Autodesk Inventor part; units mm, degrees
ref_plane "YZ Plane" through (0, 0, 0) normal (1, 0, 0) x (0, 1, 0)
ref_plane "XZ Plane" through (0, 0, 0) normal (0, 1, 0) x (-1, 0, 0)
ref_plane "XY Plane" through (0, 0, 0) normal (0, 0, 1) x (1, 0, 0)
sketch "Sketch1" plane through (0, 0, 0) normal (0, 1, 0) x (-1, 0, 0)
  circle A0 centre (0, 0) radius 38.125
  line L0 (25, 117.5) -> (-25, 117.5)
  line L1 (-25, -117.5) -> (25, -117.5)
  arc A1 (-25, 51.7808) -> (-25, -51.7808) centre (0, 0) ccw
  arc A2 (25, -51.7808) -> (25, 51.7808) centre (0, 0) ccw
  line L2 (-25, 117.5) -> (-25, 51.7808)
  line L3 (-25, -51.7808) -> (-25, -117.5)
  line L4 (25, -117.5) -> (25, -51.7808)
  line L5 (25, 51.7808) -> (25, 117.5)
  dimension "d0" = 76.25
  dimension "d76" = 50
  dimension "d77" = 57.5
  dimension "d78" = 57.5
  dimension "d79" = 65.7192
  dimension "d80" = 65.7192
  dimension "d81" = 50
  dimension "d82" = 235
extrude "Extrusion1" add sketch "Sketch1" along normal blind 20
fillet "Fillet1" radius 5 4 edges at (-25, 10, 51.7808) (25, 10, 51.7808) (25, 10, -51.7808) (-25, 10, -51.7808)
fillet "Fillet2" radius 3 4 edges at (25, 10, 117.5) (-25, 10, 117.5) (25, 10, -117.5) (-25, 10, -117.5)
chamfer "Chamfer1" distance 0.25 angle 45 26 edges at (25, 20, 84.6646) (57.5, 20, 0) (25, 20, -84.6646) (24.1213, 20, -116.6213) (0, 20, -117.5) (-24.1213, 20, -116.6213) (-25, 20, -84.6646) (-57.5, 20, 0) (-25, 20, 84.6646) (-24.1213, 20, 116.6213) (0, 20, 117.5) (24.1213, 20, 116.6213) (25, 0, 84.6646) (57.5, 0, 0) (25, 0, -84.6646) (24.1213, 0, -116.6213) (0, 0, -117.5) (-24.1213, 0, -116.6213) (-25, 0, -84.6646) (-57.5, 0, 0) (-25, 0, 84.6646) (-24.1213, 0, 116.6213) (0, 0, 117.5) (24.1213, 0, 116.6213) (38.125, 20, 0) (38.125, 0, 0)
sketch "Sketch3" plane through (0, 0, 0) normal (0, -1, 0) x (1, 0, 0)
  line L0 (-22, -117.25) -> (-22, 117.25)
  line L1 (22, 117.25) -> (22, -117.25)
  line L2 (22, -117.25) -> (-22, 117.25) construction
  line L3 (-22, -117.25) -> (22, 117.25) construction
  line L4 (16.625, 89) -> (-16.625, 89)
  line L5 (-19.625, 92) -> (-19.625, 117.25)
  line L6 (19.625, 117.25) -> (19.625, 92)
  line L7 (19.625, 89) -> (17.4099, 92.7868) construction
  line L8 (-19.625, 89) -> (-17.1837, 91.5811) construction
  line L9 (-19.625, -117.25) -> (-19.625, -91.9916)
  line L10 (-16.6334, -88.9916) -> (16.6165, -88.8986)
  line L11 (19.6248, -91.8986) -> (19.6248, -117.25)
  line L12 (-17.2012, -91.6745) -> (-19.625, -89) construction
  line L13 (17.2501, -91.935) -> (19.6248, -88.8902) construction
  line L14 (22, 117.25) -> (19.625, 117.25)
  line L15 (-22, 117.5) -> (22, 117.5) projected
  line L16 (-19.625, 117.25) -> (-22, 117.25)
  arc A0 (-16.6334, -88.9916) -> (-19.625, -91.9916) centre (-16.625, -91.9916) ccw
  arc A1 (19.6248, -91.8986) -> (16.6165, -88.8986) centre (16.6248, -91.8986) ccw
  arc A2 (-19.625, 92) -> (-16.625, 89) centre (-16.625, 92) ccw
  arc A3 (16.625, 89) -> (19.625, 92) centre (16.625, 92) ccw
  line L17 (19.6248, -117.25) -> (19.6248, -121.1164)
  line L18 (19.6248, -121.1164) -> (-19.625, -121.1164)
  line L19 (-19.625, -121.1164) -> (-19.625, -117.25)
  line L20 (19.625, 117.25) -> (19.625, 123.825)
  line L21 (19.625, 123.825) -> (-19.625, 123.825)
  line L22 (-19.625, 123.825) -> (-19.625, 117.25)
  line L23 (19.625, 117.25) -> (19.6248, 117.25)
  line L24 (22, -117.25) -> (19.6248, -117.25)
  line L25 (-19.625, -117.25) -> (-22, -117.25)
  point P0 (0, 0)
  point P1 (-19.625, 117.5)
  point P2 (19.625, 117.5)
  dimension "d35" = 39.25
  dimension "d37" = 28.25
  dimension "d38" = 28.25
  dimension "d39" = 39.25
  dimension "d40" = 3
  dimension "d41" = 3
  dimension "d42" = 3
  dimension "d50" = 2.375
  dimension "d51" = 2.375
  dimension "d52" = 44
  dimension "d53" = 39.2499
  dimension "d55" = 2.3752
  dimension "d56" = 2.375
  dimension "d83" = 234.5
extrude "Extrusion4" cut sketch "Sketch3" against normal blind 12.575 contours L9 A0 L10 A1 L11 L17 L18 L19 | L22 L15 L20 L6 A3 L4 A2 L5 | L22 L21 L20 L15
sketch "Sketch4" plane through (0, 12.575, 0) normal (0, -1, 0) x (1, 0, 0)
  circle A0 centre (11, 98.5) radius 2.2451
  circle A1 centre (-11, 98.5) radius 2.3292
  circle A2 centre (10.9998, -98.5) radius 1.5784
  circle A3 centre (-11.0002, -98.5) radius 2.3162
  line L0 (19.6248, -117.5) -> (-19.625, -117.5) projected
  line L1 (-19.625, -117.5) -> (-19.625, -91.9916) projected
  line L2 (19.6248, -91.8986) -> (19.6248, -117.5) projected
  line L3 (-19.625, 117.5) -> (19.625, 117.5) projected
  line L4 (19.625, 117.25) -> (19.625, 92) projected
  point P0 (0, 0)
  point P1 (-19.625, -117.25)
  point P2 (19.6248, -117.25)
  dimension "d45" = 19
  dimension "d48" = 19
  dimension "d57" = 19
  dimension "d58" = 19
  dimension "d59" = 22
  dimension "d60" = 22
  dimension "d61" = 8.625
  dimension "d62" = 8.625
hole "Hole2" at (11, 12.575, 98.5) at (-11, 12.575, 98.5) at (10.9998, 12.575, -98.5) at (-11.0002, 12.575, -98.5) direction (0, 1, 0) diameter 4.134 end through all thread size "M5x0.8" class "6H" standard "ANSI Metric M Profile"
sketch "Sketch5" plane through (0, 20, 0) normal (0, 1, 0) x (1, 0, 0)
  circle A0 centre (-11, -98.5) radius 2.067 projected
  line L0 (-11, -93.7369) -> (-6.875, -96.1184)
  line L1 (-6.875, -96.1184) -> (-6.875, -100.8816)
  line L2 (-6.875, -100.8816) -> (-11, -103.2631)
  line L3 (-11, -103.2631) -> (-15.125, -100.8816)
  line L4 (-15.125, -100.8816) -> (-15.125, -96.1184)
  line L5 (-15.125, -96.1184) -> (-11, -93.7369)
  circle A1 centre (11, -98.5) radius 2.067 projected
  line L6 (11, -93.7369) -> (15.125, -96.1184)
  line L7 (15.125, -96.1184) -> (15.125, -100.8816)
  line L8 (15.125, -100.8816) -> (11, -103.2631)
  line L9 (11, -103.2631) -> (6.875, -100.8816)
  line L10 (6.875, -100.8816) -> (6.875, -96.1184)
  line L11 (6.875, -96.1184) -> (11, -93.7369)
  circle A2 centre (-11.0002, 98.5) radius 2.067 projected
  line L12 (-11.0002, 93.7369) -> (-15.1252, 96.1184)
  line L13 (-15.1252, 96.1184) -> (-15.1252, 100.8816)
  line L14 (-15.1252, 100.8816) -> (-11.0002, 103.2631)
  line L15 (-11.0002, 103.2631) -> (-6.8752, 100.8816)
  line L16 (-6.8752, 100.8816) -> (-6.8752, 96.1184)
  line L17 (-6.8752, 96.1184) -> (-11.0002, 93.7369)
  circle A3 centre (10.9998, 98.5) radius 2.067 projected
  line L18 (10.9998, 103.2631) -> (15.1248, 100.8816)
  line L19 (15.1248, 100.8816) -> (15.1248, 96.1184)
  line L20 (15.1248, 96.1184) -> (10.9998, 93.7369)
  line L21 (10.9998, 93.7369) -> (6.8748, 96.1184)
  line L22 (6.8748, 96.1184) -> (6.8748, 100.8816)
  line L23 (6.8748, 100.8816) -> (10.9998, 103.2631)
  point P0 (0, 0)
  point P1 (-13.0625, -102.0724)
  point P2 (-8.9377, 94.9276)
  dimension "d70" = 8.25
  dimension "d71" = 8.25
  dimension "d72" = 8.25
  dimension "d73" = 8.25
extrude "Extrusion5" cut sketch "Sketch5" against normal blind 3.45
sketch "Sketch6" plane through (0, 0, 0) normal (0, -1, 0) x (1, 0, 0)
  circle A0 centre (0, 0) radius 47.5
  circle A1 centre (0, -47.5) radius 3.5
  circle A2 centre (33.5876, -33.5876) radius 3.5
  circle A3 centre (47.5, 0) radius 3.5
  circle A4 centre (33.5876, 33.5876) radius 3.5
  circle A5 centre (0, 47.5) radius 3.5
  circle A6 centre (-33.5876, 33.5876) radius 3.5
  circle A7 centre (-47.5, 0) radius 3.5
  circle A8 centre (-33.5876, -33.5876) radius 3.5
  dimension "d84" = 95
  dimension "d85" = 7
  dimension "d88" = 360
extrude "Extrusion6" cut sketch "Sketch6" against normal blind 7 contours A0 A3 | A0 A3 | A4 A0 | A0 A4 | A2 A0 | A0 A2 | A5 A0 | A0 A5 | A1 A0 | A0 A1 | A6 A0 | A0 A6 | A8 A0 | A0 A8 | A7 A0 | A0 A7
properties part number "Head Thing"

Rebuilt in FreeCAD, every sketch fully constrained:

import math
import FreeCAD as App
import Part
import Sketcher

V = App.Vector
Q = App.Units.Quantity


def edges_at(feature, points):
    """Names of the edges that pass closest to the given points."""
    edges = feature.Shape.Edges
    near = lambda p: min(range(len(edges)), key=lambda i: edges[i].distToShape(Part.Vertex(*p))[0])
    return sorted({f"Edge{near(p) + 1}" for p in points})

doc = App.newDocument("Part")
body = doc.addObject("PartDesign::Body", "Body")

# Sketch on XZ plane
sketch1 = body.newObject("Sketcher::SketchObject", "Sketch")
sketch1.AttachmentSupport = (doc.getObject("XZ_Plane"), [""])
sketch1.MapMode = "FlatFace"
sketch1.addGeometry([
    Part.LineSegment(V(-25, 52, 0), V(-25, 118, 0)),  # 0
    Part.LineSegment(V(-25, 118, 0), V(25, 118, 0)),  # 1
    Part.LineSegment(V(25, 118, 0), V(25, 52, 0)),  # 2
    Part.ArcOfCircle(Part.Circle(V(0, 0, 0), V(0, 0, 1), 58), math.radians(-64), math.radians(64)),  # 3
    Part.LineSegment(V(25, -52, 0), V(25, -118, 0)),  # 4
    Part.LineSegment(V(25, -118, 0), V(-25, -118, 0)),  # 5
    Part.LineSegment(V(-25, -118, 0), V(-25, -52, 0)),  # 6
    Part.ArcOfCircle(Part.Circle(V(0, 0, 0), V(0, 0, 1), 58), math.radians(116), math.radians(244)),  # 7
    Part.Circle(V(0, 0, 0), V(0, 0, 1), 38),  # 8
], False)
sketch1.addConstraint([
    Sketcher.Constraint("Coincident", 0, 2, 1, 1),
    Sketcher.Constraint("Coincident", 1, 2, 2, 1),
    Sketcher.Constraint("Coincident", 2, 2, 3, 2),
    Sketcher.Constraint("Coincident", 3, 1, 4, 1),
    Sketcher.Constraint("Coincident", 4, 2, 5, 1),
    Sketcher.Constraint("Coincident", 5, 2, 6, 1),
    Sketcher.Constraint("Coincident", 6, 2, 7, 2),
    Sketcher.Constraint("Coincident", 7, 1, 0, 1),
    Sketcher.Constraint("Vertical", 0),
    Sketcher.Constraint("Horizontal", 1),
    Sketcher.Constraint("Vertical", 2),
    Sketcher.Constraint("Vertical", 4),
    Sketcher.Constraint("Horizontal", 5),
    Sketcher.Constraint("Vertical", 6),
    Sketcher.Constraint("Coincident", 3, 3, -1, 1),
    Sketcher.Constraint("Coincident", 7, 3, -1, 1),
    Sketcher.Constraint("Coincident", 8, 3, -1, 1),
    Sketcher.Constraint("Equal", 3, 7),
    Sketcher.Constraint("Symmetric", 0, 2, 4, 2, -1, 1),
    Sketcher.Constraint("Horizontal", 3, 1, 6, 2),
    Sketcher.Constraint("Horizontal", 2, 2, 7, 1),
    Sketcher.Constraint("Radius", 3, Q("57.5 mm")),
    Sketcher.Constraint("Diameter", 8, Q("76.25 mm")),
    Sketcher.Constraint("DistanceX", 1, 1, 1, 2, Q("50 mm")),
    Sketcher.Constraint("DistanceY", 0, 1, 0, 2, Q("65.7192 mm")),
])
pad1 = body.newObject("PartDesign::Pad", "Pad")
pad1.Profile = sketch1
pad1.Length = 20
pad1.Reversed = True
doc.recompute()

fillet = body.newObject("PartDesign::Fillet", "Fillet")
fillet.Base = (pad1, edges_at(pad1, [
    (-25, 10, 51.781),
    (25, 10, 51.781),
    (25, 10, -51.781),
    (-25, 10, -51.781),
]))
fillet.Radius = 5
doc.recompute()

fillet2 = body.newObject("PartDesign::Fillet", "Fillet001")
fillet2.Base = (fillet, edges_at(fillet, [
    (25, 10, 117.5),
    (-25, 10, 117.5),
    (25, 10, -117.5),
    (-25, 10, -117.5),
]))
fillet2.Radius = 3
doc.recompute()

chamfer = body.newObject("PartDesign::Chamfer", "Chamfer")
chamfer.Base = (fillet2, edges_at(fillet2, [
    (25, 20, 84.665),
    (57.5, 20, 0),
    (25, 20, -84.665),
    (24.121, 20, -116.621),
    (0, 20, -117.5),
    (-24.121, 20, -116.621),
    (-25, 20, -84.665),
    (-57.5, 20, 0),
    (-25, 20, 84.665),
    (-24.121, 20, 116.621),
    (0, 20, 117.5),
    (24.121, 20, 116.621),
    (25, 0, 84.665),
    (57.5, 0, 0),
    (25, 0, -84.665),
    (24.121, 0, -116.621),
    (0, 0, -117.5),
    (-24.121, 0, -116.621),
    (-25, 0, -84.665),
    (-57.5, 0, 0),
    (-25, 0, 84.665),
    (-24.121, 0, 116.621),
    (0, 0, 117.5),
    (24.121, 0, 116.621),
    (38.125, 20, 0),
    (38.125, 0, 0),
]))
chamfer.Size = 0.25

# Sketch on XZ plane
sketch2 = body.newObject("Sketcher::SketchObject", "Sketch001")
sketch2.AttachmentSupport = (doc.getObject("XZ_Plane"), [""])
sketch2.MapMode = "FlatFace"
sketch2.addGeometry([
    Part.LineSegment(V(-19.6, -92, 0), V(-19.6, -121.1, 0)),  # 0
    Part.LineSegment(V(-19.6, -121.1, 0), V(19.6, -121.1, 0)),  # 1
    Part.LineSegment(V(19.6, -121.1, 0), V(19.6, -91.9, 0)),  # 2
    Part.ArcOfCircle(Part.Circle(V(16.6, -91.9, 0), V(0, 0, 1), 3), math.radians(0), math.radians(90)),  # 3
    Part.LineSegment(V(16.6, -88.9, 0), V(-16.6, -89, 0)),  # 4
    Part.ArcOfCircle(Part.Circle(V(-16.6, -92, 0), V(0, 0, 1), 3), math.radians(90), math.radians(180)),  # 5
    Part.ArcOfCircle(Part.Circle(V(-16.6, 92, 0), V(0, 0, 1), 3), math.radians(180), math.radians(270)),  # 6
    Part.LineSegment(V(-16.6, 89, 0), V(16.6, 89, 0)),  # 7
    Part.ArcOfCircle(Part.Circle(V(16.6, 92, 0), V(0, 0, 1), 3), math.radians(-90), math.radians(0)),  # 8
    Part.LineSegment(V(19.6, 92, 0), V(19.6, 123.8, 0)),  # 9
    Part.LineSegment(V(19.6, 123.8, 0), V(-19.6, 123.8, 0)),  # 10
    Part.LineSegment(V(-19.6, 123.8, 0), V(-19.6, 92, 0)),  # 11
], False)
sketch2.addConstraint([
    Sketcher.Constraint("Coincident", 0, 2, 1, 1),
    Sketcher.Constraint("Coincident", 1, 2, 2, 1),
    Sketcher.Constraint("Tangent", 2, 2, 3, 1),
    Sketcher.Constraint("Tangent", 3, 2, 4, 1),
    Sketcher.Constraint("Tangent", 4, 2, 5, 1),
    Sketcher.Constraint("Tangent", 5, 2, 0, 1),
    Sketcher.Constraint("Tangent", 6, 2, 7, 1),
    Sketcher.Constraint("Tangent", 7, 2, 8, 1),
    Sketcher.Constraint("Tangent", 8, 2, 9, 1),
    Sketcher.Constraint("Coincident", 9, 2, 10, 1),
    Sketcher.Constraint("Coincident", 10, 2, 11, 1),
    Sketcher.Constraint("Tangent", 11, 2, 6, 1),
    Sketcher.Constraint("Vertical", 0),
    Sketcher.Constraint("Horizontal", 1),
    Sketcher.Constraint("Vertical", 2),
    Sketcher.Constraint("Horizontal", 7),
    Sketcher.Constraint("Vertical", 9),
    Sketcher.Constraint("Horizontal", 10),
    Sketcher.Constraint("Vertical", 11),
    Sketcher.Constraint("Equal", 3, 5),
    Sketcher.Constraint("Equal", 5, 6),
    Sketcher.Constraint("Equal", 6, 8),
    Sketcher.Constraint("Vertical", 5, 3, 6, 3),
    Sketcher.Constraint("Vertical", 3, 3, 8, 3),
    Sketcher.Constraint("Radius", 3, Q("3 mm")),
    Sketcher.Constraint("DistanceX", 10, 2, 10, 1, Q("39.25 mm")),
    Sketcher.Constraint("DistanceY", -1, 1, 6, 3, Q("92 mm")),
    Sketcher.Constraint("Angle", 4, Q("-179.8397 deg")),
    Sketcher.Constraint("DistanceY", 9, 1, 9, 2, Q("31.825 mm")),
    Sketcher.Constraint("DistanceY", 0, 2, 0, 1, Q("29.1248 mm")),
    Sketcher.Constraint("DistanceX", 5, 3, -1, 1, Q("16.625 mm")),
    Sketcher.Constraint("DistanceY", 3, 3, -1, 1, Q("91.8986 mm")),
])
pocket1 = body.newObject("PartDesign::Pocket", "Pocket")
pocket1.Profile = sketch2
pocket1.Length = 12.575

# Sketch on XZ plane
sketch3 = body.newObject("Sketcher::SketchObject", "Sketch002")
sketch3.AttachmentSupport = (doc.getObject("XZ_Plane"), [""])
sketch3.MapMode = "FlatFace"
sketch3.AttachmentOffset = App.Placement(V(0, 0, -12.575), App.Rotation())
sketch3.addGeometry([
    Part.Circle(V(11, 98.5, 0), V(0, 0, 1), 2.1),
    Part.Circle(V(-11, 98.5, 0), V(0, 0, 1), 2.1),
    Part.Circle(V(11, -98.5, 0), V(0, 0, 1), 2.1),
    Part.Circle(V(-11, -98.5, 0), V(0, 0, 1), 2.1),
], False)
sketch3.addConstraint([
    Sketcher.Constraint("Equal", 0, 1),
    Sketcher.Constraint("Equal", 1, 2),
    Sketcher.Constraint("Equal", 2, 3),
    Sketcher.Constraint("Symmetric", 1, 3, 2, 3, -1, 1),
    Sketcher.Constraint("Symmetric", 0, 3, 3, 3, -1, 1),
    Sketcher.Constraint("Symmetric", 0, 3, 1, 3, -2),
    Sketcher.Constraint("Diameter", 0, Q("4.134 mm")),
    Sketcher.Constraint("DistanceX", -1, 1, 0, 3, Q("11 mm")),
    Sketcher.Constraint("DistanceY", 2, 3, 0, 3, Q("197 mm")),
])
doc.recompute()
hole = body.newObject("PartDesign::Hole", "Hole")
hole.Profile = sketch3
hole.ThreadType = "None"
hole.Diameter = 4.134
hole.DepthType = "ThroughAll"

# Sketch on XZ plane
sketch4 = body.newObject("Sketcher::SketchObject", "Sketch003")
sketch4.AttachmentSupport = (doc.getObject("XZ_Plane"), [""])
sketch4.MapMode = "FlatFace"
sketch4.AttachmentOffset = App.Placement(V(0, 0, -20), App.Rotation())
sketch4.addGeometry([
    Part.LineSegment(V(-6.9, 96.1, 0), V(-11, 93.7, 0)),  # 0
    Part.LineSegment(V(-11, 93.7, 0), V(-15.1, 96.1, 0)),  # 1
    Part.LineSegment(V(-15.1, 96.1, 0), V(-15.1, 100.9, 0)),  # 2
    Part.LineSegment(V(-15.1, 100.9, 0), V(-11, 103.3, 0)),  # 3
    Part.LineSegment(V(-11, 103.3, 0), V(-6.9, 100.9, 0)),  # 4
    Part.LineSegment(V(-6.9, 100.9, 0), V(-6.9, 96.1, 0)),  # 5
    Part.Circle(V(-11, 98.5, 0), V(0, 0, 1), 2.1),  # 6
    Part.LineSegment(V(15.1, 96.1, 0), V(11, 93.7, 0)),  # 7
    Part.LineSegment(V(11, 93.7, 0), V(6.9, 96.1, 0)),  # 8
    Part.LineSegment(V(6.9, 96.1, 0), V(6.9, 100.9, 0)),  # 9
    Part.LineSegment(V(6.9, 100.9, 0), V(11, 103.3, 0)),  # 10
    Part.LineSegment(V(11, 103.3, 0), V(15.1, 100.9, 0)),  # 11
    Part.LineSegment(V(15.1, 100.9, 0), V(15.1, 96.1, 0)),  # 12
    Part.Circle(V(11, 98.5, 0), V(0, 0, 1), 2.1),  # 13
    Part.LineSegment(V(-15.1, -96.1, 0), V(-11, -93.7, 0)),  # 14
    Part.LineSegment(V(-11, -93.7, 0), V(-6.9, -96.1, 0)),  # 15
    Part.LineSegment(V(-6.9, -96.1, 0), V(-6.9, -100.9, 0)),  # 16
    Part.LineSegment(V(-6.9, -100.9, 0), V(-11, -103.3, 0)),  # 17
    Part.LineSegment(V(-11, -103.3, 0), V(-15.1, -100.9, 0)),  # 18
    Part.LineSegment(V(-15.1, -100.9, 0), V(-15.1, -96.1, 0)),  # 19
    Part.Circle(V(-11, -98.5, 0), V(0, 0, 1), 2.1),  # 20
    Part.LineSegment(V(15.1, -100.9, 0), V(11, -103.3, 0)),  # 21
    Part.LineSegment(V(11, -103.3, 0), V(6.9, -100.9, 0)),  # 22
    Part.LineSegment(V(6.9, -100.9, 0), V(6.9, -96.1, 0)),  # 23
    Part.LineSegment(V(6.9, -96.1, 0), V(11, -93.7, 0)),  # 24
    Part.LineSegment(V(11, -93.7, 0), V(15.1, -96.1, 0)),  # 25
    Part.LineSegment(V(15.1, -96.1, 0), V(15.1, -100.9, 0)),  # 26
    Part.Circle(V(11, -98.5, 0), V(0, 0, 1), 2.1),  # 27
], False)
sketch4.addConstraint([
    Sketcher.Constraint("Coincident", 0, 2, 1, 1),
    Sketcher.Constraint("Coincident", 1, 2, 2, 1),
    Sketcher.Constraint("Coincident", 2, 2, 3, 1),
    Sketcher.Constraint("Coincident", 3, 2, 4, 1),
    Sketcher.Constraint("Coincident", 4, 2, 5, 1),
    Sketcher.Constraint("Coincident", 5, 2, 0, 1),
    Sketcher.Constraint("Coincident", 7, 2, 8, 1),
    Sketcher.Constraint("Coincident", 8, 2, 9, 1),
    Sketcher.Constraint("Coincident", 9, 2, 10, 1),
    Sketcher.Constraint("Coincident", 10, 2, 11, 1),
    Sketcher.Constraint("Coincident", 11, 2, 12, 1),
    Sketcher.Constraint("Coincident", 12, 2, 7, 1),
    Sketcher.Constraint("Coincident", 14, 2, 15, 1),
    Sketcher.Constraint("Coincident", 15, 2, 16, 1),
    Sketcher.Constraint("Coincident", 16, 2, 17, 1),
    Sketcher.Constraint("Coincident", 17, 2, 18, 1),
    Sketcher.Constraint("Coincident", 18, 2, 19, 1),
    Sketcher.Constraint("Coincident", 19, 2, 14, 1),
    Sketcher.Constraint("Coincident", 21, 2, 22, 1),
    Sketcher.Constraint("Coincident", 22, 2, 23, 1),
    Sketcher.Constraint("Coincident", 23, 2, 24, 1),
    Sketcher.Constraint("Coincident", 24, 2, 25, 1),
    Sketcher.Constraint("Coincident", 25, 2, 26, 1),
    Sketcher.Constraint("Coincident", 26, 2, 21, 1),
    Sketcher.Constraint("Vertical", 2),
    Sketcher.Constraint("Vertical", 5),
    Sketcher.Constraint("Vertical", 9),
    Sketcher.Constraint("Vertical", 12),
    Sketcher.Constraint("Vertical", 16),
    Sketcher.Constraint("Vertical", 19),
    Sketcher.Constraint("Vertical", 23),
    Sketcher.Constraint("Vertical", 26),
    Sketcher.Constraint("Equal", 6, 13),
    Sketcher.Constraint("Equal", 13, 20),
    Sketcher.Constraint("Equal", 20, 27),
    Sketcher.Constraint("Symmetric", 13, 3, 20, 3, -1, 1),
    Sketcher.Constraint("Symmetric", 6, 3, 27, 3, -1, 1),
    Sketcher.Constraint("Symmetric", 7, 2, 14, 2, -1, 1),
    Sketcher.Constraint("Symmetric", 8, 2, 15, 2, -1, 1),
    Sketcher.Constraint("Symmetric", 10, 2, 17, 2, -1, 1),
    Sketcher.Constraint("Symmetric", 11, 2, 18, 2, -1, 1),
    Sketcher.Constraint("Symmetric", 3, 2, 21, 2, -1, 1),
    Sketcher.Constraint("Symmetric", 4, 2, 22, 2, -1, 1),
    Sketcher.Constraint("Symmetric", 0, 2, 24, 2, -1, 1),
    Sketcher.Constraint("Symmetric", 1, 2, 25, 2, -1, 1),
    Sketcher.Constraint("Symmetric", 6, 3, 13, 3, -2),
    Sketcher.Constraint("Symmetric", 0, 2, 7, 2, -2),
    Sketcher.Constraint("Symmetric", 5, 2, 8, 2, -2),
    Sketcher.Constraint("Symmetric", 3, 2, 10, 2, -2),
    Sketcher.Constraint("Symmetric", 2, 2, 11, 2, -2),
    Sketcher.Constraint("Parallel", 0, 3),
    Sketcher.Constraint("Parallel", 1, 4),
    Sketcher.Constraint("Parallel", 3, 7),
    Sketcher.Constraint("Parallel", 4, 8),
    Sketcher.Constraint("Parallel", 7, 10),
    Sketcher.Constraint("Parallel", 10, 14),
    Sketcher.Constraint("Parallel", 14, 17),
    Sketcher.Constraint("Parallel", 17, 21),
    Sketcher.Constraint("Parallel", 21, 24),
    Sketcher.Constraint("Horizontal", 2, 2, 4, 2),
    Sketcher.Constraint("Horizontal", 1, 2, 5, 2),
    Sketcher.Constraint("Vertical", 20, 3, 0, 2),
    Sketcher.Constraint("Angle", 0, Q("-150.0007 deg")),
    Sketcher.Constraint("DistanceX", 2, 2, 4, 2, Q("8.25 mm")),
    Sketcher.Constraint("Diameter", 6, Q("4.134 mm")),
    Sketcher.Constraint("DistanceX", 6, 3, -1, 1, Q("11 mm")),
    Sketcher.Constraint("DistanceY", 20, 3, 6, 3, Q("197 mm")),
    Sketcher.Constraint("DistanceY", 2, 1, 2, 2, Q("4.7632 mm")),
    Sketcher.Constraint("DistanceY", -1, 1, 0, 2, Q("93.737 mm")),
])
pocket2 = body.newObject("PartDesign::Pocket", "Pocket001")
pocket2.Profile = sketch4
pocket2.Length = 3.45
pocket2.Reversed = True

# Sketch on XZ plane
sketch5 = body.newObject("Sketcher::SketchObject", "Sketch004")
sketch5.AttachmentSupport = (doc.getObject("XZ_Plane"), [""])
sketch5.MapMode = "FlatFace"
sketch5.addGeometry([
    Part.Circle(V(47.5, 0, 0), V(0, 0, 1), 3.5),  # 0
    Part.Circle(V(33.6, 33.6, 0), V(0, 0, 1), 3.5),  # 1
    Part.Circle(V(33.6, -33.6, 0), V(0, 0, 1), 3.5),  # 2
    Part.Circle(V(0, 47.5, 0), V(0, 0, 1), 3.5),  # 3
    Part.Circle(V(0, -47.5, 0), V(0, 0, 1), 3.5),  # 4
    Part.Circle(V(-33.6, 33.6, 0), V(0, 0, 1), 3.5),  # 5
    Part.Circle(V(-33.6, -33.6, 0), V(0, 0, 1), 3.5),  # 6
    Part.Circle(V(-47.5, 0, 0), V(0, 0, 1), 3.5),  # 7
], False)
sketch5.addConstraint([
    Sketcher.Constraint("Equal", 0, 1),
    Sketcher.Constraint("Equal", 1, 2),
    Sketcher.Constraint("Equal", 2, 3),
    Sketcher.Constraint("Equal", 3, 4),
    Sketcher.Constraint("Equal", 4, 5),
    Sketcher.Constraint("Equal", 5, 6),
    Sketcher.Constraint("Equal", 6, 7),
    Sketcher.Constraint("Symmetric", 3, 3, 4, 3, -1, 1),
    Sketcher.Constraint("Symmetric", 2, 3, 5, 3, -1, 1),
    Sketcher.Constraint("Symmetric", 1, 3, 6, 3, -1, 1),
    Sketcher.Constraint("Symmetric", 0, 3, 7, 3, -1, 1),
    Sketcher.Constraint("Symmetric", 1, 3, 5, 3, -2),
    Sketcher.Constraint("PointOnObject", 0, 3, -1),
    Sketcher.Constraint("PointOnObject", 3, 3, -2),
    Sketcher.Constraint("Diameter", 0, Q("7 mm")),
    Sketcher.Constraint("DistanceY", 4, 3, 3, 3, Q("95 mm")),
    Sketcher.Constraint("DistanceX", -1, 1, 0, 3, Q("47.5 mm")),
    Sketcher.Constraint("DistanceX", -1, 1, 1, 3, Q("33.5876 mm")),
    Sketcher.Constraint("DistanceY", -1, 1, 1, 3, Q("33.5876 mm")),
])
pocket3 = body.newObject("PartDesign::Pocket", "Pocket002")
pocket3.Profile = sketch5
pocket3.Length = 7

doc.recompute()
